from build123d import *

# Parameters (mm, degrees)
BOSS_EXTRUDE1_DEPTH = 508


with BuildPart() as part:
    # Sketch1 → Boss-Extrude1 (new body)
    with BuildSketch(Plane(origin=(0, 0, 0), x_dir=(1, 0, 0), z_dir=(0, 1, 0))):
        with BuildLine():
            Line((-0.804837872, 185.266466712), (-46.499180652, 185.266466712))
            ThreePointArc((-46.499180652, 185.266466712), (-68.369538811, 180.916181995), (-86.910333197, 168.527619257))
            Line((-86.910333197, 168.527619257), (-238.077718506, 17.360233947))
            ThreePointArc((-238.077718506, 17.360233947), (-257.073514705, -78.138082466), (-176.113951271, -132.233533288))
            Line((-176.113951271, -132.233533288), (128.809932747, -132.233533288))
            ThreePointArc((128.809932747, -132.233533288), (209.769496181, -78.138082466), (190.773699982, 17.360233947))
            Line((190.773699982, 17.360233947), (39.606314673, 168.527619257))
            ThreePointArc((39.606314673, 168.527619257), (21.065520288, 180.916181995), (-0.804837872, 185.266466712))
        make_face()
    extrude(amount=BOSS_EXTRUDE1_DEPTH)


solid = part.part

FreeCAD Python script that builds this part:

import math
import FreeCAD as App
import Part
import Sketcher
from FreeCAD import Vector
Q = App.Units.Quantity

doc = App.newDocument("Part")
body = doc.addObject("PartDesign::Body", "Body")

# Sketch on XZ plane
sketch1 = doc.addObject("Sketcher::SketchObject", "Sketch")
body.addObject(sketch1)
sketch1.AttachmentSupport = (doc.XZ_Plane, [""])
sketch1.MapMode = "FlatFace"
sketch1.addGeometry([
    Part.LineSegment(Vector(-0.804838, -185.266467, 0), Vector(-46.499181, -185.266467, 0)),  # 0
    Part.ArcOfCircle(Part.Circle(Vector(-46.499181, -128.116467, 0), Vector(0, 0, 1), 57.15), math.radians(-135), math.radians(-90)),  # 1
    Part.LineSegment(Vector(-86.910333, -168.527619, 0), Vector(-238.077719, -17.360234, 0)),  # 2
    Part.ArcOfCircle(Part.Circle(Vector(-176.113951, 44.603533, 0), Vector(0, 0, 1), 87.63), math.radians(90), math.radians(225)),  # 3
    Part.LineSegment(Vector(-176.113951, 132.233533, 0), Vector(128.809933, 132.233533, 0)),  # 4
    Part.ArcOfCircle(Part.Circle(Vector(128.809933, 44.603533, 0), Vector(0, 0, 1), 87.63), math.radians(-45), math.radians(90)),  # 5
    Part.LineSegment(Vector(190.7737, -17.360234, 0), Vector(39.606315, -168.527619, 0)),  # 6
    Part.ArcOfCircle(Part.Circle(Vector(-0.804838, -128.116467, 0), Vector(0, 0, 1), 57.15), math.radians(-90), math.radians(-45)),  # 7
], False)
sketch1.addConstraint([
    Sketcher.Constraint("Tangent", 0, 2, 1, 2),
    Sketcher.Constraint("Tangent", 1, 1, 2, 1),
    Sketcher.Constraint("Tangent", 2, 2, 3, 2),
    Sketcher.Constraint("Tangent", 3, 1, 4, 1),
    Sketcher.Constraint("Tangent", 4, 2, 5, 2),
    Sketcher.Constraint("Tangent", 5, 1, 6, 1),
    Sketcher.Constraint("Tangent", 6, 2, 7, 2),
    Sketcher.Constraint("Tangent", 7, 1, 0, 1),
    Sketcher.Constraint("Horizontal", 0),
    Sketcher.Constraint("Horizontal", 4),
    Sketcher.Constraint("Equal", 3, 5),
    Sketcher.Constraint("Equal", 1, 7),
    Sketcher.Constraint("Perpendicular", 2, 6),
    Sketcher.Constraint("Horizontal", 2, 2, 5, 1),
    Sketcher.Constraint("Radius", 1, Q("2.25 in")),
    Sketcher.Constraint("Radius", 3, Q("3.45 in")),
    Sketcher.Constraint("DistanceY", 1, 3, 3, 3, Q("6.8 in")),
    Sketcher.Constraint("DistanceX", -1, 1, 5, 1, 190.7737),
    Sketcher.Constraint("DistanceX", 0, 2, 0, 1, 45.694343),
    Sketcher.Constraint("DistanceY", 1, 1, -1, 1, 168.527619),
])
pad1 = doc.addObject("PartDesign::Pad", "Pad")
body.addObject(pad1)
pad1.Profile = sketch1
pad1.Length = Q("20 in")
pad1.Reversed = True

doc.recompute()
